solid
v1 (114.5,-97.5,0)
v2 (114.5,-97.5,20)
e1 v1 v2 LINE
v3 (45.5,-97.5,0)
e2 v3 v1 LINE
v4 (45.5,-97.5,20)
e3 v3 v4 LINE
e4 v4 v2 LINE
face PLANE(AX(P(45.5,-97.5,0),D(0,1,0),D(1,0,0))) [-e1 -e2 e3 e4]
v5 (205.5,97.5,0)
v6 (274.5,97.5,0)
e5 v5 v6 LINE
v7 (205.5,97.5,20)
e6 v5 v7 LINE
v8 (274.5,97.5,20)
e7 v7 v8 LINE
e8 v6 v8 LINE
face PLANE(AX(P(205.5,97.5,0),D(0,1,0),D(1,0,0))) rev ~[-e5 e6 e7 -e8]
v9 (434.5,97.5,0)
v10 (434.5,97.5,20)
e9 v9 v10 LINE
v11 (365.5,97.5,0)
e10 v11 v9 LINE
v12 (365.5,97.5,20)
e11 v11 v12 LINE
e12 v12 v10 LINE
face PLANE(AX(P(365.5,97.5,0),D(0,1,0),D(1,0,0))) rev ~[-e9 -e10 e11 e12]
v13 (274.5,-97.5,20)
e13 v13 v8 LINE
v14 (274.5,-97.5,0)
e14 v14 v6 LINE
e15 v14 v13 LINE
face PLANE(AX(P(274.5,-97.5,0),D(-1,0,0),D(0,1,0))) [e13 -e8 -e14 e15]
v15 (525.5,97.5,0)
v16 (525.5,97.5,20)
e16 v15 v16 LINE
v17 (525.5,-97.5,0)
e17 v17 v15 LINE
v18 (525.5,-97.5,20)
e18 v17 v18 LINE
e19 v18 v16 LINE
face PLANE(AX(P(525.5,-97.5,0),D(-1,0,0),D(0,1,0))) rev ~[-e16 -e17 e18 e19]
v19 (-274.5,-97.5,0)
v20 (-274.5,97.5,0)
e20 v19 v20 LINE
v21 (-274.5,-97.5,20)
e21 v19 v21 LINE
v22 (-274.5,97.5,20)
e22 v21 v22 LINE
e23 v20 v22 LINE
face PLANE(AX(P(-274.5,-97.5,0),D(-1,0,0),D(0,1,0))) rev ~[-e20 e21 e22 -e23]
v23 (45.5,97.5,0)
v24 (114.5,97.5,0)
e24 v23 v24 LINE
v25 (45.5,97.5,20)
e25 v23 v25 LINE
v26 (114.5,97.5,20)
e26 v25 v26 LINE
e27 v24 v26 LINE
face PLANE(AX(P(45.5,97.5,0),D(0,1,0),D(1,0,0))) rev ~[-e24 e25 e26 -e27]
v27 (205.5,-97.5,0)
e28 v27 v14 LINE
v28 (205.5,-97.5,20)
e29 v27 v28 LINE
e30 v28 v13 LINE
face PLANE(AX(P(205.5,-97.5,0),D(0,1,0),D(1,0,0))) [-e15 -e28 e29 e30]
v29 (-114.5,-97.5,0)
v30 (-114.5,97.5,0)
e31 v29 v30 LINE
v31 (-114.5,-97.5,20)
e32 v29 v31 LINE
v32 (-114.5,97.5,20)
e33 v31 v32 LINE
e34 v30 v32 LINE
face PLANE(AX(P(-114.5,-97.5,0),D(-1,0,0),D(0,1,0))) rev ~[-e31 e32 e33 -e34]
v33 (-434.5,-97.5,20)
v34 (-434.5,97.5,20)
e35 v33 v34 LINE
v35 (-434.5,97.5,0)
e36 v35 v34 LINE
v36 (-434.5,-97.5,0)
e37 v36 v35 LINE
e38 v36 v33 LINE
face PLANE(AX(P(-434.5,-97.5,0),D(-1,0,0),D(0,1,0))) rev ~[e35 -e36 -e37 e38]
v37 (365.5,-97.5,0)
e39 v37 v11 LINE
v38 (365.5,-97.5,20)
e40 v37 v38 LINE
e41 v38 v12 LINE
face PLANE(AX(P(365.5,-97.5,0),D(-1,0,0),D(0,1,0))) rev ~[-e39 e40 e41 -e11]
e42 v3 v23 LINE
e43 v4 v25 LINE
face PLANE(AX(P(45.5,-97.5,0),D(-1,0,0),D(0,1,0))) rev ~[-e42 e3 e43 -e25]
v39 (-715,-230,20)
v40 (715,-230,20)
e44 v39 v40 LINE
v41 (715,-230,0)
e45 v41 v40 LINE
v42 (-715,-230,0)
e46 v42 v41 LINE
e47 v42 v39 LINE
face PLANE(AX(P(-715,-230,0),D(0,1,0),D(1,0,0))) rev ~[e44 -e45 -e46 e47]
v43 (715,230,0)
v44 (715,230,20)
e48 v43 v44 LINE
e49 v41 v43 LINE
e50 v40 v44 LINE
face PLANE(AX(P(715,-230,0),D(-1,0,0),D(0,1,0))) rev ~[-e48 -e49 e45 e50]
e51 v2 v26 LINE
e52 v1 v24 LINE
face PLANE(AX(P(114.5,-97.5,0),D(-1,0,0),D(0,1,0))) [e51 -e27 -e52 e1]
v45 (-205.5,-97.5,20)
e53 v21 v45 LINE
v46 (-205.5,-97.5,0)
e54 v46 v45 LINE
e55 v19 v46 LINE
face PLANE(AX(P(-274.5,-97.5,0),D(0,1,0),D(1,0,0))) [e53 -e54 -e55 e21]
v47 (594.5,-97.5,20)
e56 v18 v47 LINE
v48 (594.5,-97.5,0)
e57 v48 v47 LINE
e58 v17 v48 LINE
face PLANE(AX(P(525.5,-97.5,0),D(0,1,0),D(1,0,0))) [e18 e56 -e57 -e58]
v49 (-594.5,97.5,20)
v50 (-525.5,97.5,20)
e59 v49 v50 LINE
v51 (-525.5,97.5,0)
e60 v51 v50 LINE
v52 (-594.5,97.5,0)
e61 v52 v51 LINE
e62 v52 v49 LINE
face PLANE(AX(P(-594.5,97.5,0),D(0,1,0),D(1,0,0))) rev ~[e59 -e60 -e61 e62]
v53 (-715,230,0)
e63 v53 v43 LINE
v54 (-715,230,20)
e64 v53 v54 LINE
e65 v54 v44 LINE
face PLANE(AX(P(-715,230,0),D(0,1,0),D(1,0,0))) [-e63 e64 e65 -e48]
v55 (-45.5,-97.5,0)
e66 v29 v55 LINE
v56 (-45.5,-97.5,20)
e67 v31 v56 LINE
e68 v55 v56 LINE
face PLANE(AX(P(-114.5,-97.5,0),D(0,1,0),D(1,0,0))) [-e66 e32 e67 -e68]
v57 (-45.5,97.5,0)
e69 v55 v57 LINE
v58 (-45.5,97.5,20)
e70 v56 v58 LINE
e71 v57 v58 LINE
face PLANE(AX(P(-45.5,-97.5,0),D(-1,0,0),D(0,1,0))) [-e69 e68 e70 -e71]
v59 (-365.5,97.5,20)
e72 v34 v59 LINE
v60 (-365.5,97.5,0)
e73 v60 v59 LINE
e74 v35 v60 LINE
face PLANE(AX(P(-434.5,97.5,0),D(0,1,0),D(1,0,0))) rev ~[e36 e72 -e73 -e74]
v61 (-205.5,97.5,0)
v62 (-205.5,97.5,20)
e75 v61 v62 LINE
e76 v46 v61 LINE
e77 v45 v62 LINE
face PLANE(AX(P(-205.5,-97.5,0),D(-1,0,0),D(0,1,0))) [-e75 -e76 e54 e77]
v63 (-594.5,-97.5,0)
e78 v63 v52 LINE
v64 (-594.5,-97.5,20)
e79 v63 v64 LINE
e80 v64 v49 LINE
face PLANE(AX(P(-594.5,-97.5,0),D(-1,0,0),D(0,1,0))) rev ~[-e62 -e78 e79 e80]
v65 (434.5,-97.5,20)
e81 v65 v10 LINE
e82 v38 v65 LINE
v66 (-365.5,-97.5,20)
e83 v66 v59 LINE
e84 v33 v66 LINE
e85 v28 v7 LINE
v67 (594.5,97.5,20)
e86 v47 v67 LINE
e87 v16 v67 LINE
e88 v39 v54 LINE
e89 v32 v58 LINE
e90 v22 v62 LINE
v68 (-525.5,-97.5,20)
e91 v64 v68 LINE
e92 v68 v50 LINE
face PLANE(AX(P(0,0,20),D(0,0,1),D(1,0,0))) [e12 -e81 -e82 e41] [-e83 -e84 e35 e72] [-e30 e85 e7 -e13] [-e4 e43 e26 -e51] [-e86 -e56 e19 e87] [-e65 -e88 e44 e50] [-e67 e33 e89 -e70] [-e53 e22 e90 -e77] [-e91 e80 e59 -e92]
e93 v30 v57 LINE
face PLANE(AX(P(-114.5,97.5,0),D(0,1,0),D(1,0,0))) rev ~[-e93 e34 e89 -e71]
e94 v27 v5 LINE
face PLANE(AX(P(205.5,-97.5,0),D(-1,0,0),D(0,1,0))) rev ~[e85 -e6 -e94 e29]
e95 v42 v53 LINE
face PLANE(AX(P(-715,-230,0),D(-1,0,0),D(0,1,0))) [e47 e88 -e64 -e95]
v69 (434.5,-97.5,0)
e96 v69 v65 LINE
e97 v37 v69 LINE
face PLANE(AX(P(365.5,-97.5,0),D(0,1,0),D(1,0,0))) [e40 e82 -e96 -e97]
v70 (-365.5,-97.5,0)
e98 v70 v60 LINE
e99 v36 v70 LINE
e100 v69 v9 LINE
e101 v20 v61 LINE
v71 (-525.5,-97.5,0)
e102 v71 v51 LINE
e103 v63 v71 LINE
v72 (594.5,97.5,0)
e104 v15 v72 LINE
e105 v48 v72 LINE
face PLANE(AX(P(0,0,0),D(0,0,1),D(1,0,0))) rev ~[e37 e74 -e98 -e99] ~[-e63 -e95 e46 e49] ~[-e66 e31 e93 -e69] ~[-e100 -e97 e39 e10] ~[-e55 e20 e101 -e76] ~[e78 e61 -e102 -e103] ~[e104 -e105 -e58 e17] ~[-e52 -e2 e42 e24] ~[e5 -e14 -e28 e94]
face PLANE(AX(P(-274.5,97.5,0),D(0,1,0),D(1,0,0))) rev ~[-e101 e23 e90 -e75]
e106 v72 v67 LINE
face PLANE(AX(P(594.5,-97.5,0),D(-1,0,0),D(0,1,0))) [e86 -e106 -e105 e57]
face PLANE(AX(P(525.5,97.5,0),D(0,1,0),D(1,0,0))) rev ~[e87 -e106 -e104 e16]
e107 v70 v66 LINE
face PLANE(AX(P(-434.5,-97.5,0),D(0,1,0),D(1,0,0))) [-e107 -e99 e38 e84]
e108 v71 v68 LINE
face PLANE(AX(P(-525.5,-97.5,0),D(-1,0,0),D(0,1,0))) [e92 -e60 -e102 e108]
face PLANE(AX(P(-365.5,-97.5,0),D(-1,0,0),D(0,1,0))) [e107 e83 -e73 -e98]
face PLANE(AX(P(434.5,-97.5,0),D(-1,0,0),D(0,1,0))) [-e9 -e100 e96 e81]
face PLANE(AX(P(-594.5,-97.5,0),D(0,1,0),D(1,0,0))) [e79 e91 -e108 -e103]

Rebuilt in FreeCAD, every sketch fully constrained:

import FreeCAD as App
import Part
import Sketcher

V = App.Vector

doc = App.newDocument("Part")
body = doc.addObject("PartDesign::Body", "Body")

sketch1 = body.newObject("Sketcher::SketchObject", "Sketch")
sketch1.AttachmentSupport = (doc.getObject("XY_Plane"), [""])
sketch1.MapMode = "FlatFace"
sketch1.addGeometry([
    Part.LineSegment(V(-715, 230, 0), V(-715, -230, 0)),
    Part.LineSegment(V(-715, -230, 0), V(715, -230, 0)),
    Part.LineSegment(V(715, -230, 0), V(715, 230, 0)),
    Part.LineSegment(V(715, 230, 0), V(-715, 230, 0)),
    Part.LineSegment(V(-525.5, -97.5, 0), V(-594.5, -97.5, 0)),
    Part.LineSegment(V(-594.5, -97.5, 0), V(-594.5, 97.5, 0)),
    Part.LineSegment(V(-594.5, 97.5, 0), V(-525.5, 97.5, 0)),
    Part.LineSegment(V(-525.5, 97.5, 0), V(-525.5, -97.5, 0)),
    Part.LineSegment(V(-365.5, -97.5, 0), V(-434.5, -97.5, 0)),
    Part.LineSegment(V(-434.5, -97.5, 0), V(-434.5, 97.5, 0)),
    Part.LineSegment(V(-434.5, 97.5, 0), V(-365.5, 97.5, 0)),
    Part.LineSegment(V(-365.5, 97.5, 0), V(-365.5, -97.5, 0)),
    Part.LineSegment(V(-205.5, -97.5, 0), V(-274.5, -97.5, 0)),
    Part.LineSegment(V(-274.5, -97.5, 0), V(-274.5, 97.5, 0)),
    Part.LineSegment(V(-274.5, 97.5, 0), V(-205.5, 97.5, 0)),
    Part.LineSegment(V(-205.5, 97.5, 0), V(-205.5, -97.5, 0)),
    Part.LineSegment(V(-45.5, -97.5, 0), V(-114.5, -97.5, 0)),
    Part.LineSegment(V(-114.5, -97.5, 0), V(-114.5, 97.5, 0)),
    Part.LineSegment(V(-114.5, 97.5, 0), V(-45.5, 97.5, 0)),
    Part.LineSegment(V(-45.5, 97.5, 0), V(-45.5, -97.5, 0)),
    Part.LineSegment(V(114.5, -97.5, 0), V(45.5, -97.5, 0)),
    Part.LineSegment(V(45.5, -97.5, 0), V(45.5, 97.5, 0)),
    Part.LineSegment(V(45.5, 97.5, 0), V(114.5, 97.5, 0)),
    Part.LineSegment(V(114.5, 97.5, 0), V(114.5, -97.5, 0)),
    Part.LineSegment(V(274.5, -97.5, 0), V(205.5, -97.5, 0)),
    Part.LineSegment(V(205.5, -97.5, 0), V(205.5, 97.5, 0)),
    Part.LineSegment(V(205.5, 97.5, 0), V(274.5, 97.5, 0)),
    Part.LineSegment(V(274.5, 97.5, 0), V(274.5, -97.5, 0)),
    Part.LineSegment(V(434.5, -97.5, 0), V(365.5, -97.5, 0)),
    Part.LineSegment(V(365.5, -97.5, 0), V(365.5, 97.5, 0)),
    Part.LineSegment(V(365.5, 97.5, 0), V(434.5, 97.5, 0)),
    Part.LineSegment(V(434.5, 97.5, 0), V(434.5, -97.5, 0)),
    Part.LineSegment(V(594.5, -97.5, 0), V(525.5, -97.5, 0)),
    Part.LineSegment(V(525.5, -97.5, 0), V(525.5, 97.5, 0)),
    Part.LineSegment(V(525.5, 97.5, 0), V(594.5, 97.5, 0)),
    Part.LineSegment(V(594.5, 97.5, 0), V(594.5, -97.5, 0)),
], False)
sketch1.addConstraint([
    Sketcher.Constraint("Coincident", 0, 2, 1, 1),
    Sketcher.Constraint("Coincident", 1, 2, 2, 1),
    Sketcher.Constraint("Coincident", 2, 2, 3, 1),
    Sketcher.Constraint("Coincident", 3, 2, 0, 1),
    Sketcher.Constraint("Coincident", 4, 2, 5, 1),
    Sketcher.Constraint("Coincident", 5, 2, 6, 1),
    Sketcher.Constraint("Coincident", 6, 2, 7, 1),
    Sketcher.Constraint("Coincident", 7, 2, 4, 1),
    Sketcher.Constraint("Coincident", 8, 2, 9, 1),
    Sketcher.Constraint("Coincident", 9, 2, 10, 1),
    Sketcher.Constraint("Coincident", 10, 2, 11, 1),
    Sketcher.Constraint("Coincident", 11, 2, 8, 1),
    Sketcher.Constraint("Coincident", 12, 2, 13, 1),
    Sketcher.Constraint("Coincident", 13, 2, 14, 1),
    Sketcher.Constraint("Coincident", 14, 2, 15, 1),
    Sketcher.Constraint("Coincident", 15, 2, 12, 1),
    Sketcher.Constraint("Coincident", 16, 2, 17, 1),
    Sketcher.Constraint("Coincident", 17, 2, 18, 1),
    Sketcher.Constraint("Coincident", 18, 2, 19, 1),
    Sketcher.Constraint("Coincident", 19, 2, 16, 1),
    Sketcher.Constraint("Coincident", 20, 2, 21, 1),
    Sketcher.Constraint("Coincident", 21, 2, 22, 1),
    Sketcher.Constraint("Coincident", 22, 2, 23, 1),
    Sketcher.Constraint("Coincident", 23, 2, 20, 1),
    Sketcher.Constraint("Coincident", 24, 2, 25, 1),
    Sketcher.Constraint("Coincident", 25, 2, 26, 1),
    Sketcher.Constraint("Coincident", 26, 2, 27, 1),
    Sketcher.Constraint("Coincident", 27, 2, 24, 1),
    Sketcher.Constraint("Coincident", 28, 2, 29, 1),
    Sketcher.Constraint("Coincident", 29, 2, 30, 1),
    Sketcher.Constraint("Coincident", 30, 2, 31, 1),
    Sketcher.Constraint("Coincident", 31, 2, 28, 1),
    Sketcher.Constraint("Coincident", 32, 2, 33, 1),
    Sketcher.Constraint("Coincident", 33, 2, 34, 1),
    Sketcher.Constraint("Coincident", 34, 2, 35, 1),
    Sketcher.Constraint("Coincident", 35, 2, 32, 1),
    Sketcher.Constraint("Vertical", 0),
    Sketcher.Constraint("Horizontal", 1),
    Sketcher.Constraint("Vertical", 2),
    Sketcher.Constraint("Horizontal", 3),
    Sketcher.Constraint("Horizontal", 4),
    Sketcher.Constraint("Vertical", 5),
    Sketcher.Constraint("Horizontal", 6),
    Sketcher.Constraint("Vertical", 7),
    Sketcher.Constraint("Horizontal", 8),
    Sketcher.Constraint("Vertical", 9),
    Sketcher.Constraint("Horizontal", 10),
    Sketcher.Constraint("Vertical", 11),
    Sketcher.Constraint("Horizontal", 12),
    Sketcher.Constraint("Vertical", 13),
    Sketcher.Constraint("Horizontal", 14),
    Sketcher.Constraint("Vertical", 15),
    Sketcher.Constraint("Horizontal", 16),
    Sketcher.Constraint("Vertical", 17),
    Sketcher.Constraint("Horizontal", 18),
    Sketcher.Constraint("Vertical", 19),
    Sketcher.Constraint("Horizontal", 20),
    Sketcher.Constraint("Vertical", 21),
    Sketcher.Constraint("Horizontal", 22),
    Sketcher.Constraint("Vertical", 23),
    Sketcher.Constraint("Horizontal", 24),
    Sketcher.Constraint("Vertical", 25),
    Sketcher.Constraint("Horizontal", 26),
    Sketcher.Constraint("Vertical", 27),
    Sketcher.Constraint("Horizontal", 28),
    Sketcher.Constraint("Vertical", 29),
    Sketcher.Constraint("Horizontal", 30),
    Sketcher.Constraint("Vertical", 31),
    Sketcher.Constraint("Horizontal", 32),
    Sketcher.Constraint("Vertical", 33),
    Sketcher.Constraint("Horizontal", 34),
    Sketcher.Constraint("Vertical", 35),
    Sketcher.Constraint("Symmetric", 0, 2, 2, 2, -1, 1),
    Sketcher.Constraint("Symmetric", 18, 2, 20, 2, -1, 1),
    Sketcher.Constraint("Symmetric", 16, 2, 22, 2, -1, 1),
    Sketcher.Constraint("Symmetric", 14, 2, 24, 2, -1, 1),
    Sketcher.Constraint("Symmetric", 12, 2, 26, 2, -1, 1),
    Sketcher.Constraint("Symmetric", 10, 2, 28, 2, -1, 1),
    Sketcher.Constraint("Symmetric", 8, 2, 30, 2, -1, 1),
    Sketcher.Constraint("Symmetric", 6, 2, 32, 2, -1, 1),
    Sketcher.Constraint("Symmetric", 4, 2, 34, 2, -1, 1),
    Sketcher.Constraint("Horizontal", 7, 2, 8, 2),
    Sketcher.Constraint("Horizontal", 6, 2, 9, 2),
    Sketcher.Constraint("Horizontal", 11, 2, 12, 2),
    Sketcher.Constraint("Horizontal", 10, 2, 13, 2),
    Sketcher.Constraint("Horizontal", 15, 2, 16, 2),
    Sketcher.Constraint("Horizontal", 14, 2, 17, 2),
    Sketcher.Constraint("Horizontal", 19, 2, 20, 2),
    Sketcher.Constraint("Equal", 6, 8),
    Sketcher.Constraint("Equal", 10, 12),
    Sketcher.Constraint("Equal", 14, 16),
    Sketcher.Constraint("DistanceX", 1, 1, 1, 2, 1430.0),
    Sketcher.Constraint("DistanceX", 4, 2, 4, 1, 69.0),
    Sketcher.Constraint("DistanceY", 0, 2, 0, 1, 460.0),
    Sketcher.Constraint("DistanceY", 5, 1, 5, 2, 195.0),
    Sketcher.Constraint("DistanceX", 7, 2, 8, 2, 91.0),
    Sketcher.Constraint("DistanceX", 11, 2, 12, 2, 91.0),
    Sketcher.Constraint("DistanceX", 15, 2, 16, 2, 91.0),
    Sketcher.Constraint("DistanceX", 19, 2, 20, 2, 91.0),
])
pad1 = body.newObject("PartDesign::Pad", "Pad")
pad1.Profile = sketch1
pad1.Length = 20

doc.recompute()
